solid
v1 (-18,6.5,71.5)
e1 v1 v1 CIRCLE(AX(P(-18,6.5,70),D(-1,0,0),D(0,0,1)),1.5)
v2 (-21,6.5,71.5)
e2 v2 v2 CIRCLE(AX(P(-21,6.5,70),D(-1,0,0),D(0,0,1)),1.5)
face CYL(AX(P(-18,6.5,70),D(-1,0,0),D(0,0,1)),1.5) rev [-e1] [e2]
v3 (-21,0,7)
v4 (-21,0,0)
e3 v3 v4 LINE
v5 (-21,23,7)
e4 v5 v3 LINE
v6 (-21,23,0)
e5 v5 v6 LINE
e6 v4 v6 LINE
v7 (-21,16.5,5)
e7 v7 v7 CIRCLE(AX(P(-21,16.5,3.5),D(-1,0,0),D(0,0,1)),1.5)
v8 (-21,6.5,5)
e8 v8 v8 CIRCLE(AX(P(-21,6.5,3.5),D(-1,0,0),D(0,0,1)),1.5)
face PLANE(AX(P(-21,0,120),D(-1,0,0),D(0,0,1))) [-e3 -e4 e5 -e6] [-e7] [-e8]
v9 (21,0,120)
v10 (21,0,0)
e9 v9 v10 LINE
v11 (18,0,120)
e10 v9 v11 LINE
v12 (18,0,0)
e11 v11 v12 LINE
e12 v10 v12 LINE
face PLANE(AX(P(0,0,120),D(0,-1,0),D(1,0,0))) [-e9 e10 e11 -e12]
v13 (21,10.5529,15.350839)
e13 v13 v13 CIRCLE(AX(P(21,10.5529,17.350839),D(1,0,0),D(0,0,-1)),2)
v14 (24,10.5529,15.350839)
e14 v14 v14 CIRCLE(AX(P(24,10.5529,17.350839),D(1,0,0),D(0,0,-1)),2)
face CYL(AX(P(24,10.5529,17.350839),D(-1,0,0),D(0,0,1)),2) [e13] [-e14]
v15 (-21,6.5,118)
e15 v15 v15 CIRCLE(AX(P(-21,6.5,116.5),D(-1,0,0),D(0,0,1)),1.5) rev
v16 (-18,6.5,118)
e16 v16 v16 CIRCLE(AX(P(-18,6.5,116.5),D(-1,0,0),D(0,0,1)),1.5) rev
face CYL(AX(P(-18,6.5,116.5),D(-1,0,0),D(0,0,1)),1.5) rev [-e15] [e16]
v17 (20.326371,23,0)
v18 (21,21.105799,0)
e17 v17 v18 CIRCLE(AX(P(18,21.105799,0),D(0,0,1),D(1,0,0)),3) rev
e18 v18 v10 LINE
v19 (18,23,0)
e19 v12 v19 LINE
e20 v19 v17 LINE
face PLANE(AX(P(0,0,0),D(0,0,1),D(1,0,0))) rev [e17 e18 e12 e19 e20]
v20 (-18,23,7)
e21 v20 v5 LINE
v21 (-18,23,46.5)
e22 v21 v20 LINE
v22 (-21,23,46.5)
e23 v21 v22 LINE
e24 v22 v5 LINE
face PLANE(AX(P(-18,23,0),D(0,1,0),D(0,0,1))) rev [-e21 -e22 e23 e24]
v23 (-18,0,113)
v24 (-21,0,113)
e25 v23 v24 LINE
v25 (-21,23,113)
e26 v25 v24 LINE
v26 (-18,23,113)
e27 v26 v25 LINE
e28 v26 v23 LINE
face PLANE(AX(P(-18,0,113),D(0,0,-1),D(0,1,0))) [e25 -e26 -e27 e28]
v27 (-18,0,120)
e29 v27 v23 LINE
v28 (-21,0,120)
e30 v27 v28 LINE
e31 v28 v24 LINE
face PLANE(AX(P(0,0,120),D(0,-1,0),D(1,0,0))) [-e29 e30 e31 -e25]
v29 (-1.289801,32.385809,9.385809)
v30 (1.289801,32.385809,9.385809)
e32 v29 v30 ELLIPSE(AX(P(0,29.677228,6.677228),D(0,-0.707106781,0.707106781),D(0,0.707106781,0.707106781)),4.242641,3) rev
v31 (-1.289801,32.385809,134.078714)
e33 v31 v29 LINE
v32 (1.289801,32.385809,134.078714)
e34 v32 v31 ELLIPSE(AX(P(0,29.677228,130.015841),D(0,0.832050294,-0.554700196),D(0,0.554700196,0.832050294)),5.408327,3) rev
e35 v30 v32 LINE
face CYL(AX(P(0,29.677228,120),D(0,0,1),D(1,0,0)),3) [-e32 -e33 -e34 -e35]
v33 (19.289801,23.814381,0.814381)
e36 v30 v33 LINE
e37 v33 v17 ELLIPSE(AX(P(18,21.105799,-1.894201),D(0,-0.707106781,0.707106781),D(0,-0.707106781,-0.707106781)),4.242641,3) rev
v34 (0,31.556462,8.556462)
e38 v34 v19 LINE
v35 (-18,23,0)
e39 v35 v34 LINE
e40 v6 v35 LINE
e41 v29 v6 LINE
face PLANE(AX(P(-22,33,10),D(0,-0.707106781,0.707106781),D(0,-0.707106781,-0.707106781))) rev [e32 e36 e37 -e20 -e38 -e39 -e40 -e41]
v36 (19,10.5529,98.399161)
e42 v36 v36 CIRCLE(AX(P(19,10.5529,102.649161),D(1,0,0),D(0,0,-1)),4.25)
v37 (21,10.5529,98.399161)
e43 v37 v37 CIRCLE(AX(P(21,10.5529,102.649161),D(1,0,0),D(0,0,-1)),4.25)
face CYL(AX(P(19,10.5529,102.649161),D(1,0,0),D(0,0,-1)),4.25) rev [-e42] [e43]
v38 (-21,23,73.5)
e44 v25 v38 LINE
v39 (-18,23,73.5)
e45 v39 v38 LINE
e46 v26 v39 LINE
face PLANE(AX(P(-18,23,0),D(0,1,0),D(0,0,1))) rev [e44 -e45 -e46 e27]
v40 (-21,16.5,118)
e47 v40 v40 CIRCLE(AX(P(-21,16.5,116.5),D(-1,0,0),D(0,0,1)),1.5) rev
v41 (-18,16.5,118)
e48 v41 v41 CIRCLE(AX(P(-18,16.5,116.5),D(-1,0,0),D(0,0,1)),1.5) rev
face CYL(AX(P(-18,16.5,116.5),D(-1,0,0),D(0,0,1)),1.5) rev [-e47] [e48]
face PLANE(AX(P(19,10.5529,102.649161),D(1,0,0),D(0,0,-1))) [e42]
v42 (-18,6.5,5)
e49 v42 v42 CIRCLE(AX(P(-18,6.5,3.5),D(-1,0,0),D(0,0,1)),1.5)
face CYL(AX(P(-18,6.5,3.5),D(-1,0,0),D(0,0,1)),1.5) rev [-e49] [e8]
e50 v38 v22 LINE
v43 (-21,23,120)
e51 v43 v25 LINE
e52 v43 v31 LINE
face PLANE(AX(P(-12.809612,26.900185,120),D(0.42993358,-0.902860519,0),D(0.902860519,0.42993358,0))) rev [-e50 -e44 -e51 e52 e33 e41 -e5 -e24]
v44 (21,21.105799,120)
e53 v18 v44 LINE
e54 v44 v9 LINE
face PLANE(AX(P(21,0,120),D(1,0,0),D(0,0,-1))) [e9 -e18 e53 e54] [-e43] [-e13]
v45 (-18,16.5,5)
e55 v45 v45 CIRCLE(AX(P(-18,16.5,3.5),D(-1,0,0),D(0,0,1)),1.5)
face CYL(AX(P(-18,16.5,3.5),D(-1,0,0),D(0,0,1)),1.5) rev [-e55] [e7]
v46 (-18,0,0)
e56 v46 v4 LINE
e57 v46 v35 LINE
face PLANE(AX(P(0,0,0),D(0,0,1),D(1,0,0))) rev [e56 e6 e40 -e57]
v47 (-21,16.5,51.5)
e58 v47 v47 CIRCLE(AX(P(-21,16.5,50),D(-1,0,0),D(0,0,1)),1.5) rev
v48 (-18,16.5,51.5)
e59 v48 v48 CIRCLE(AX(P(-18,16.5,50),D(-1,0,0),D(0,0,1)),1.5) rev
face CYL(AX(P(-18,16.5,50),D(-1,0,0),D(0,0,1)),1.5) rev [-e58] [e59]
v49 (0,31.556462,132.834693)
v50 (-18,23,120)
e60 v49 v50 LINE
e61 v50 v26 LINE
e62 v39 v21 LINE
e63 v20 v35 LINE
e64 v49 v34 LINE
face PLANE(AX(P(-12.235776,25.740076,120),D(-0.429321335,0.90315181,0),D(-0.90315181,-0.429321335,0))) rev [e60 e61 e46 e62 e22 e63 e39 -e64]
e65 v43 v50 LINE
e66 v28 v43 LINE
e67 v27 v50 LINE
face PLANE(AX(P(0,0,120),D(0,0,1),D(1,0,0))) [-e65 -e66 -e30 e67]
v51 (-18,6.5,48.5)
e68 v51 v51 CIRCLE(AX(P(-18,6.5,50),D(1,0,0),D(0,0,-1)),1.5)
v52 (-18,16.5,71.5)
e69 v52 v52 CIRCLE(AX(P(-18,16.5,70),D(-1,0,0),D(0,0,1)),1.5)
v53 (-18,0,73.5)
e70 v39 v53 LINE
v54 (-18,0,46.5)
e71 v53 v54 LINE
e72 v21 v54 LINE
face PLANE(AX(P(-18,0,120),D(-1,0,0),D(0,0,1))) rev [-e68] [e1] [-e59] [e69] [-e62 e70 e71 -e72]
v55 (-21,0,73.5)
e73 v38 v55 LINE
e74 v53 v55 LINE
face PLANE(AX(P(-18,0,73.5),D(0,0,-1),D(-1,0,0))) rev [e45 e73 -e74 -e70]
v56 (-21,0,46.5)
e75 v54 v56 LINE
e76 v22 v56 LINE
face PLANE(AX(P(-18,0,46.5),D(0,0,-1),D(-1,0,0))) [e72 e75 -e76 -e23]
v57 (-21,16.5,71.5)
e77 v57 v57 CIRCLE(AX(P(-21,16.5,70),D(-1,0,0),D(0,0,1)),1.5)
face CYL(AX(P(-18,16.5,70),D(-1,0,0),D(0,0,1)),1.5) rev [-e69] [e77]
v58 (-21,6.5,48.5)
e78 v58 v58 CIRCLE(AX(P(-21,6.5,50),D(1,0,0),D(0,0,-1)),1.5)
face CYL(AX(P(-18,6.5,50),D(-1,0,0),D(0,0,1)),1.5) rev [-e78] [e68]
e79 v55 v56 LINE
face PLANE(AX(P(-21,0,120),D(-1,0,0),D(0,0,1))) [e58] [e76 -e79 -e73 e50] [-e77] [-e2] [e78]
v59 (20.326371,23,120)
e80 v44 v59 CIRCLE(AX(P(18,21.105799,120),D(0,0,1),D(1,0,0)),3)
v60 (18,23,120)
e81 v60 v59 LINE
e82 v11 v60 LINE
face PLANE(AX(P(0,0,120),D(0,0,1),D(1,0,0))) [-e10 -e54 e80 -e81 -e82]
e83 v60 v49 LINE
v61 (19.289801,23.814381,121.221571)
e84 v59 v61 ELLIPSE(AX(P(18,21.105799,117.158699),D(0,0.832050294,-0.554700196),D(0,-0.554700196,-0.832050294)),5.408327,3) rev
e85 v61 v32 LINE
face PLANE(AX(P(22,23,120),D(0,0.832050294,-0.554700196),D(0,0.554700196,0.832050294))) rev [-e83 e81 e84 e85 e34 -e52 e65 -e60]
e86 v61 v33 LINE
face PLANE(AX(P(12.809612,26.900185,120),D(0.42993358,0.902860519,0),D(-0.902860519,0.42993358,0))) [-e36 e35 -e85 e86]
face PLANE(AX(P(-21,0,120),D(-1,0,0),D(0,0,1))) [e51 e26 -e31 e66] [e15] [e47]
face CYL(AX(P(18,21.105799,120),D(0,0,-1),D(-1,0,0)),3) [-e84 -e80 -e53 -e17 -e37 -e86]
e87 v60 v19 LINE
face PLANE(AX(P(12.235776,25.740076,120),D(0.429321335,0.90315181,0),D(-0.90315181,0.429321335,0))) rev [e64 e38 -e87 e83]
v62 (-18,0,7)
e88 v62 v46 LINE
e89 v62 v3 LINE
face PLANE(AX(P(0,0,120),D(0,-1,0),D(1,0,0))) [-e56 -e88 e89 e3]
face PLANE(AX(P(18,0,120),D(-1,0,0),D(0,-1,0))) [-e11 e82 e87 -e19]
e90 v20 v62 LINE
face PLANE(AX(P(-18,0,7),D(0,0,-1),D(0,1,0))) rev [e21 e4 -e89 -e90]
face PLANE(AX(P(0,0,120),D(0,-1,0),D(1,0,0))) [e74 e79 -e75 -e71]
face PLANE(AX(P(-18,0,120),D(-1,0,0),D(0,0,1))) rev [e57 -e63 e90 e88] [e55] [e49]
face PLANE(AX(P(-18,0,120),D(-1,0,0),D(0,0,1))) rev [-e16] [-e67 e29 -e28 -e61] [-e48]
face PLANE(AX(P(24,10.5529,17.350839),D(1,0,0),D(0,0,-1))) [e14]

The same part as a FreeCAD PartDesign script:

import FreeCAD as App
import Part
import Sketcher

V = App.Vector
Q = App.Units.Quantity


def edges_at(feature, points):
    """Names of the edges that pass closest to the given points."""
    edges = feature.Shape.Edges
    near = lambda p: min(range(len(edges)), key=lambda i: edges[i].distToShape(Part.Vertex(*p))[0])
    return sorted({f"Edge{near(p) + 1}" for p in points})


def add_polygon(sketch, points):
    """Adds a closed chain of lines whose ends are joined by coincident constraints."""
    first, n = sketch.GeometryCount, len(points)
    for a, b in zip(points, points[1:] + points[:1]):
        sketch.addGeometry(Part.LineSegment(App.Vector(*a, 0), App.Vector(*b, 0)), False)
    for i in range(n):
        sketch.addConstraint(Sketcher.Constraint("Coincident", first + i, 2, first + (i + 1) % n, 1))

doc = App.newDocument("Part")
body = doc.addObject("PartDesign::Body", "Body")

sketch1 = doc.addObject("Sketcher::SketchObject", "Sketch")
body.addObject(sketch1)
sketch1.AttachmentSupport = (doc.XY_Plane, [""])
sketch1.MapMode = "FlatFace"
add_polygon(sketch1, [(-18, 23), (0, 31.6), (18, 23), (18, 0), (21, 0), (21, 23), (0, 33), (-21, 23), (-21, 0), (-18, 0)])
sketch1.addConstraint(Sketcher.Constraint("Vertical", 2))
sketch1.addConstraint(Sketcher.Constraint("Horizontal", 3))
sketch1.addConstraint(Sketcher.Constraint("Vertical", 4))
sketch1.addConstraint(Sketcher.Constraint("Vertical", 7))
sketch1.addConstraint(Sketcher.Constraint("Horizontal", 8))
sketch1.addConstraint(Sketcher.Constraint("Vertical", 9))
sketch1.addConstraint(Sketcher.Constraint("Symmetric", 3, 2, 7, 2, -1, 1))
sketch1.addConstraint(Sketcher.Constraint("Symmetric", 2, 2, 8, 2, -2))
sketch1.addConstraint(Sketcher.Constraint("PointOnObject", 0, 2, -2))
sketch1.addConstraint(Sketcher.Constraint("PointOnObject", 5, 2, -2))
sketch1.addConstraint(Sketcher.Constraint("Horizontal", 1, 2, 4, 2))
sketch1.addConstraint(Sketcher.Constraint("Horizontal", 4, 2, 6, 2))
sketch1.addConstraint(Sketcher.Constraint("Horizontal", 6, 2, 9, 2))
sketch1.addConstraint(Sketcher.Constraint("DistanceX", 3, 1, 3, 2, Q("3 mm")))
sketch1.addConstraint(Sketcher.Constraint("DistanceY", 2, 2, 2, 1, Q("23 mm")))
sketch1.addConstraint(Sketcher.Constraint("DistanceX", -1, 1, 1, 2, Q("18 mm")))
sketch1.addConstraint(Sketcher.Constraint("DistanceY", -1, 1, 5, 2, Q("33 mm")))
sketch1.addConstraint(Sketcher.Constraint("DistanceY", -1, 1, 0, 2, Q("31.556462 mm")))
pad1 = doc.addObject("PartDesign::Pad", "Pad")
body.addObject(pad1)
pad1.Profile = sketch1
pad1.Length = 120

sketch2 = doc.addObject("Sketcher::SketchObject", "Sketch001")
body.addObject(sketch2)
sketch2.AttachmentSupport = (doc.XY_Plane, [""])
sketch2.MapMode = "FlatFace"
sketch2.AttachmentOffset = App.Placement(V(0, 0, 120), App.Rotation())
add_polygon(sketch2, [(-21, 23), (-18, 23), (0, 31.6), (18, 23), (21, 23), (0, 33)])
sketch2.addConstraint(Sketcher.Constraint("Horizontal", 0))
sketch2.addConstraint(Sketcher.Constraint("Horizontal", 3))
sketch2.addConstraint(Sketcher.Constraint("Symmetric", 0, 2, 2, 2, -2))
sketch2.addConstraint(Sketcher.Constraint("PointOnObject", 1, 2, -2))
sketch2.addConstraint(Sketcher.Constraint("PointOnObject", 4, 2, -2))
sketch2.addConstraint(Sketcher.Constraint("Equal", 0, 3))
sketch2.addConstraint(Sketcher.Constraint("DistanceX", 0, 1, 0, 2, Q("3 mm")))
sketch2.addConstraint(Sketcher.Constraint("DistanceX", 0, 2, -1, 1, Q("18 mm")))
sketch2.addConstraint(Sketcher.Constraint("DistanceY", -1, 1, 0, 2, Q("23 mm")))
sketch2.addConstraint(Sketcher.Constraint("DistanceY", -1, 1, 4, 2, Q("33 mm")))
sketch2.addConstraint(Sketcher.Constraint("DistanceY", -1, 1, 1, 2, Q("31.556462 mm")))
pad2 = doc.addObject("PartDesign::Pad", "Pad001")
body.addObject(pad2)
pad2.Profile = sketch2
pad2.Length = 15

sketch3 = doc.addObject("Sketcher::SketchObject", "Sketch002")
body.addObject(sketch3)
sketch3.AttachmentSupport = (doc.YZ_Plane, [""])
sketch3.MapMode = "FlatFace"
sketch3.AttachmentOffset = App.Placement(V(0, 0, -21), App.Rotation())
add_polygon(sketch3, [(23, 120), (23, 135), (33, 135)])
sketch3.addConstraint(Sketcher.Constraint("Vertical", 0))
sketch3.addConstraint(Sketcher.Constraint("Horizontal", 1))
sketch3.addConstraint(Sketcher.Constraint("DistanceX", 1, 1, 1, 2, Q("10 mm")))
sketch3.addConstraint(Sketcher.Constraint("DistanceY", 0, 1, 0, 2, Q("15 mm")))
sketch3.addConstraint(Sketcher.Constraint("DistanceX", -1, 1, 0, 2, Q("23 mm")))
sketch3.addConstraint(Sketcher.Constraint("DistanceY", -1, 1, 0, 2, Q("135 mm")))
pocket1 = doc.addObject("PartDesign::Pocket", "Pocket")
body.addObject(pocket1)
pocket1.Profile = sketch3
pocket1.Length = 43
pocket1.Reversed = True

sketch4 = doc.addObject("Sketcher::SketchObject", "Sketch003")
body.addObject(sketch4)
sketch4.AttachmentSupport = (doc.YZ_Plane, [""])
sketch4.MapMode = "FlatFace"
sketch4.AttachmentOffset = App.Placement(V(0, 0, 21), App.Rotation())
add_polygon(sketch4, [(23, 0), (33, 0), (33, 10)])
sketch4.addConstraint(Sketcher.Constraint("Horizontal", 0))
sketch4.addConstraint(Sketcher.Constraint("Vertical", 1))
sketch4.addConstraint(Sketcher.Constraint("PointOnObject", 0, 2, -1))
sketch4.addConstraint(Sketcher.Constraint("Equal", 0, 1))
sketch4.addConstraint(Sketcher.Constraint("DistanceX", 0, 1, 0, 2, Q("10 mm")))
sketch4.addConstraint(Sketcher.Constraint("DistanceX", -1, 1, 0, 2, Q("33 mm")))
pocket2 = doc.addObject("PartDesign::Pocket", "Pocket001")
body.addObject(pocket2)
pocket2.Profile = sketch4
pocket2.Length = 43
doc.recompute()

fillet = doc.addObject("PartDesign::Fillet", "Fillet")
body.addObject(fillet)
fillet.Base = (pocket2, edges_at(pocket2, [(0, 33, 72.5)]))
fillet.Radius = 3
doc.recompute()

fillet2 = doc.addObject("PartDesign::Fillet", "Fillet001")
body.addObject(fillet2)
fillet2.Base = (fillet, edges_at(fillet, [(21, 23, 60)]))
fillet2.Radius = 3

sketch5 = doc.addObject("Sketcher::SketchObject", "Sketch004")
body.addObject(sketch5)
sketch5.AttachmentSupport = (doc.YZ_Plane, [""])
sketch5.MapMode = "FlatFace"
sketch5.AttachmentOffset = App.Placement(V(0, 0, -21), App.Rotation())
add_polygon(sketch5, [(23, 7), (0, 7), (0, 46.5), (23, 46.5)])
add_polygon(sketch5, [(23, 73.5), (0, 73.5), (0, 113), (23, 113)])
sketch5.addGeometry(Part.Circle(V(6.5, 116.5, 0), V(0, 0, 1), 1.5), False)
sketch5.addGeometry(Part.Circle(V(16.5, 116.5, 0), V(0, 0, 1), 1.5), False)
sketch5.addGeometry(Part.Circle(V(6.5, 70, 0), V(0, 0, 1), 1.5), False)
sketch5.addGeometry(Part.Circle(V(16.5, 50, 0), V(0, 0, 1), 1.5), False)
sketch5.addGeometry(Part.Circle(V(16.5, 3.5, 0), V(0, 0, 1), 1.5), False)
sketch5.addGeometry(Part.Circle(V(6.5, 3.5, 0), V(0, 0, 1), 1.5), False)
sketch5.addGeometry(Part.Circle(V(6.5, 50, 0), V(0, 0, 1), 1.5), False)
sketch5.addGeometry(Part.Circle(V(16.5, 70, 0), V(0, 0, 1), 1.5), False)
sketch5.addConstraint(Sketcher.Constraint("Horizontal", 0))
sketch5.addConstraint(Sketcher.Constraint("Vertical", 1))
sketch5.addConstraint(Sketcher.Constraint("Horizontal", 2))
sketch5.addConstraint(Sketcher.Constraint("Vertical", 3))
sketch5.addConstraint(Sketcher.Constraint("Horizontal", 4))
sketch5.addConstraint(Sketcher.Constraint("Vertical", 5))
sketch5.addConstraint(Sketcher.Constraint("Horizontal", 6))
sketch5.addConstraint(Sketcher.Constraint("Vertical", 7))
sketch5.addConstraint(Sketcher.Constraint("Equal", 8, 9))
sketch5.addConstraint(Sketcher.Constraint("Equal", 9, 10))
sketch5.addConstraint(Sketcher.Constraint("Equal", 10, 11))
sketch5.addConstraint(Sketcher.Constraint("Equal", 11, 12))
sketch5.addConstraint(Sketcher.Constraint("Equal", 12, 13))
sketch5.addConstraint(Sketcher.Constraint("Equal", 13, 14))
sketch5.addConstraint(Sketcher.Constraint("Equal", 14, 15))
sketch5.addConstraint(Sketcher.Constraint("PointOnObject", 0, 2, -2))
sketch5.addConstraint(Sketcher.Constraint("PointOnObject", 4, 2, -2))
sketch5.addConstraint(Sketcher.Constraint("Horizontal", 8, 3, 9, 3))
sketch5.addConstraint(Sketcher.Constraint("Horizontal", 12, 3, 13, 3))
sketch5.addConstraint(Sketcher.Constraint("Horizontal", 11, 3, 14, 3))
sketch5.addConstraint(Sketcher.Constraint("Horizontal", 10, 3, 15, 3))
sketch5.addConstraint(Sketcher.Constraint("Vertical", 8, 3, 10, 3))
sketch5.addConstraint(Sketcher.Constraint("Vertical", 9, 3, 11, 3))
sketch5.addConstraint(Sketcher.Constraint("Vertical", 11, 3, 12, 3))
sketch5.addConstraint(Sketcher.Constraint("Vertical", 10, 3, 13, 3))
sketch5.addConstraint(Sketcher.Constraint("Vertical", 13, 3, 14, 3))
sketch5.addConstraint(Sketcher.Constraint("Vertical", 12, 3, 15, 3))
sketch5.addConstraint(Sketcher.Constraint("Vertical", 3, 2, 6, 2))
sketch5.addConstraint(Sketcher.Constraint("Equal", 3, 5))
sketch5.addConstraint(Sketcher.Constraint("Diameter", 8, Q("3 mm")))
sketch5.addConstraint(Sketcher.Constraint("DistanceX", 0, 2, 0, 1, Q("23 mm")))
sketch5.addConstraint(Sketcher.Constraint("DistanceY", 1, 1, 1, 2, Q("39.5 mm")))
sketch5.addConstraint(Sketcher.Constraint("DistanceY", -1, 1, 10, 3, Q("70 mm")))
sketch5.addConstraint(Sketcher.Constraint("DistanceY", -1, 1, 11, 3, Q("50 mm")))
sketch5.addConstraint(Sketcher.Constraint("DistanceY", -1, 1, 0, 2, Q("7 mm")))
sketch5.addConstraint(Sketcher.Constraint("DistanceY", -1, 1, 5, 2, Q("113 mm")))
sketch5.addConstraint(Sketcher.Constraint("DistanceX", 8, 3, 9, 3, Q("10 mm")))
sketch5.addConstraint(Sketcher.Constraint("DistanceY", 12, 3, 9, 3, Q("113 mm")))
sketch5.addConstraint(Sketcher.Constraint("DistanceX", -1, 1, 8, 3, Q("6.5 mm")))
sketch5.addConstraint(Sketcher.Constraint("DistanceY", -1, 1, 8, 3, Q("116.5 mm")))
pocket3 = doc.addObject("PartDesign::Pocket", "Pocket002")
body.addObject(pocket3)
pocket3.Profile = sketch5
pocket3.Length = 3
pocket3.Reversed = True

sketch6 = doc.addObject("Sketcher::SketchObject", "Sketch005")
body.addObject(sketch6)
sketch6.AttachmentSupport = (doc.YZ_Plane, [""])
sketch6.MapMode = "FlatFace"
sketch6.AttachmentOffset = App.Placement(V(0, 0, 21), App.Rotation())
sketch6.addGeometry(Part.Circle(V(10.6, 102.6, 0), V(0, 0, 1), 4.2), False)
sketch6.addConstraint(Sketcher.Constraint("Diameter", 0, Q("8.5 mm")))
sketch6.addConstraint(Sketcher.Constraint("DistanceX", -1, 1, 0, 3, Q("10.5529 mm")))
sketch6.addConstraint(Sketcher.Constraint("DistanceY", -1, 1, 0, 3, Q("102.649161 mm")))
pocket4 = doc.addObject("PartDesign::Pocket", "Pocket003")
body.addObject(pocket4)
pocket4.Profile = sketch6
pocket4.Length = 2

sketch7 = doc.addObject("Sketcher::SketchObject", "Sketch006")
body.addObject(sketch7)
sketch7.AttachmentSupport = (doc.YZ_Plane, [""])
sketch7.MapMode = "FlatFace"
sketch7.AttachmentOffset = App.Placement(V(0, 0, 21), App.Rotation())
sketch7.addGeometry(Part.Circle(V(10.6, 17.4, 0), V(0, 0, 1), 4.2), False)
sketch7.addConstraint(Sketcher.Constraint("Diameter", 0, Q("8.5 mm")))
sketch7.addConstraint(Sketcher.Constraint("DistanceX", -1, 1, 0, 3, Q("10.5529 mm")))
sketch7.addConstraint(Sketcher.Constraint("DistanceY", -1, 1, 0, 3, Q("17.350839 mm")))
pocket5 = doc.addObject("PartDesign::Pocket", "Pocket004")
body.addObject(pocket5)
pocket5.Profile = sketch7
pocket5.Length = 2

sketch8 = doc.addObject("Sketcher::SketchObject", "Sketch007")
body.addObject(sketch8)
sketch8.AttachmentSupport = (doc.YZ_Plane, [""])
sketch8.MapMode = "FlatFace"
sketch8.AttachmentOffset = App.Placement(V(0, 0, 21), App.Rotation())
sketch8.addGeometry(Part.Circle(V(10.6, 17.4, 0), V(0, 0, 1), 4.2), False)
sketch8.addConstraint(Sketcher.Constraint("Diameter", 0, Q("8.5 mm")))
sketch8.addConstraint(Sketcher.Constraint("DistanceX", -1, 1, 0, 3, Q("10.5529 mm")))
sketch8.addConstraint(Sketcher.Constraint("DistanceY", -1, 1, 0, 3, Q("17.350839 mm")))
pad3 = doc.addObject("PartDesign::Pad", "Pad002")
body.addObject(pad3)
pad3.Profile = sketch8
pad3.Length = 2
pad3.Reversed = True

sketch9 = doc.addObject("Sketcher::SketchObject", "Sketch008")
body.addObject(sketch9)
sketch9.AttachmentSupport = (doc.YZ_Plane, [""])
sketch9.MapMode = "FlatFace"
sketch9.AttachmentOffset = App.Placement(V(0, 0, 21), App.Rotation())
sketch9.addGeometry(Part.Circle(V(10.6, 17.4, 0), V(0, 0, 1), 2), False)
sketch9.addConstraint(Sketcher.Constraint("Diameter", 0, Q("4 mm")))
sketch9.addConstraint(Sketcher.Constraint("DistanceX", -1, 1, 0, 3, Q("10.5529 mm")))
sketch9.addConstraint(Sketcher.Constraint("DistanceY", -1, 1, 0, 3, Q("17.350839 mm")))
pad4 = doc.addObject("PartDesign::Pad", "Pad003")
body.addObject(pad4)
pad4.Profile = sketch9
pad4.Length = 3

doc.recompute()
